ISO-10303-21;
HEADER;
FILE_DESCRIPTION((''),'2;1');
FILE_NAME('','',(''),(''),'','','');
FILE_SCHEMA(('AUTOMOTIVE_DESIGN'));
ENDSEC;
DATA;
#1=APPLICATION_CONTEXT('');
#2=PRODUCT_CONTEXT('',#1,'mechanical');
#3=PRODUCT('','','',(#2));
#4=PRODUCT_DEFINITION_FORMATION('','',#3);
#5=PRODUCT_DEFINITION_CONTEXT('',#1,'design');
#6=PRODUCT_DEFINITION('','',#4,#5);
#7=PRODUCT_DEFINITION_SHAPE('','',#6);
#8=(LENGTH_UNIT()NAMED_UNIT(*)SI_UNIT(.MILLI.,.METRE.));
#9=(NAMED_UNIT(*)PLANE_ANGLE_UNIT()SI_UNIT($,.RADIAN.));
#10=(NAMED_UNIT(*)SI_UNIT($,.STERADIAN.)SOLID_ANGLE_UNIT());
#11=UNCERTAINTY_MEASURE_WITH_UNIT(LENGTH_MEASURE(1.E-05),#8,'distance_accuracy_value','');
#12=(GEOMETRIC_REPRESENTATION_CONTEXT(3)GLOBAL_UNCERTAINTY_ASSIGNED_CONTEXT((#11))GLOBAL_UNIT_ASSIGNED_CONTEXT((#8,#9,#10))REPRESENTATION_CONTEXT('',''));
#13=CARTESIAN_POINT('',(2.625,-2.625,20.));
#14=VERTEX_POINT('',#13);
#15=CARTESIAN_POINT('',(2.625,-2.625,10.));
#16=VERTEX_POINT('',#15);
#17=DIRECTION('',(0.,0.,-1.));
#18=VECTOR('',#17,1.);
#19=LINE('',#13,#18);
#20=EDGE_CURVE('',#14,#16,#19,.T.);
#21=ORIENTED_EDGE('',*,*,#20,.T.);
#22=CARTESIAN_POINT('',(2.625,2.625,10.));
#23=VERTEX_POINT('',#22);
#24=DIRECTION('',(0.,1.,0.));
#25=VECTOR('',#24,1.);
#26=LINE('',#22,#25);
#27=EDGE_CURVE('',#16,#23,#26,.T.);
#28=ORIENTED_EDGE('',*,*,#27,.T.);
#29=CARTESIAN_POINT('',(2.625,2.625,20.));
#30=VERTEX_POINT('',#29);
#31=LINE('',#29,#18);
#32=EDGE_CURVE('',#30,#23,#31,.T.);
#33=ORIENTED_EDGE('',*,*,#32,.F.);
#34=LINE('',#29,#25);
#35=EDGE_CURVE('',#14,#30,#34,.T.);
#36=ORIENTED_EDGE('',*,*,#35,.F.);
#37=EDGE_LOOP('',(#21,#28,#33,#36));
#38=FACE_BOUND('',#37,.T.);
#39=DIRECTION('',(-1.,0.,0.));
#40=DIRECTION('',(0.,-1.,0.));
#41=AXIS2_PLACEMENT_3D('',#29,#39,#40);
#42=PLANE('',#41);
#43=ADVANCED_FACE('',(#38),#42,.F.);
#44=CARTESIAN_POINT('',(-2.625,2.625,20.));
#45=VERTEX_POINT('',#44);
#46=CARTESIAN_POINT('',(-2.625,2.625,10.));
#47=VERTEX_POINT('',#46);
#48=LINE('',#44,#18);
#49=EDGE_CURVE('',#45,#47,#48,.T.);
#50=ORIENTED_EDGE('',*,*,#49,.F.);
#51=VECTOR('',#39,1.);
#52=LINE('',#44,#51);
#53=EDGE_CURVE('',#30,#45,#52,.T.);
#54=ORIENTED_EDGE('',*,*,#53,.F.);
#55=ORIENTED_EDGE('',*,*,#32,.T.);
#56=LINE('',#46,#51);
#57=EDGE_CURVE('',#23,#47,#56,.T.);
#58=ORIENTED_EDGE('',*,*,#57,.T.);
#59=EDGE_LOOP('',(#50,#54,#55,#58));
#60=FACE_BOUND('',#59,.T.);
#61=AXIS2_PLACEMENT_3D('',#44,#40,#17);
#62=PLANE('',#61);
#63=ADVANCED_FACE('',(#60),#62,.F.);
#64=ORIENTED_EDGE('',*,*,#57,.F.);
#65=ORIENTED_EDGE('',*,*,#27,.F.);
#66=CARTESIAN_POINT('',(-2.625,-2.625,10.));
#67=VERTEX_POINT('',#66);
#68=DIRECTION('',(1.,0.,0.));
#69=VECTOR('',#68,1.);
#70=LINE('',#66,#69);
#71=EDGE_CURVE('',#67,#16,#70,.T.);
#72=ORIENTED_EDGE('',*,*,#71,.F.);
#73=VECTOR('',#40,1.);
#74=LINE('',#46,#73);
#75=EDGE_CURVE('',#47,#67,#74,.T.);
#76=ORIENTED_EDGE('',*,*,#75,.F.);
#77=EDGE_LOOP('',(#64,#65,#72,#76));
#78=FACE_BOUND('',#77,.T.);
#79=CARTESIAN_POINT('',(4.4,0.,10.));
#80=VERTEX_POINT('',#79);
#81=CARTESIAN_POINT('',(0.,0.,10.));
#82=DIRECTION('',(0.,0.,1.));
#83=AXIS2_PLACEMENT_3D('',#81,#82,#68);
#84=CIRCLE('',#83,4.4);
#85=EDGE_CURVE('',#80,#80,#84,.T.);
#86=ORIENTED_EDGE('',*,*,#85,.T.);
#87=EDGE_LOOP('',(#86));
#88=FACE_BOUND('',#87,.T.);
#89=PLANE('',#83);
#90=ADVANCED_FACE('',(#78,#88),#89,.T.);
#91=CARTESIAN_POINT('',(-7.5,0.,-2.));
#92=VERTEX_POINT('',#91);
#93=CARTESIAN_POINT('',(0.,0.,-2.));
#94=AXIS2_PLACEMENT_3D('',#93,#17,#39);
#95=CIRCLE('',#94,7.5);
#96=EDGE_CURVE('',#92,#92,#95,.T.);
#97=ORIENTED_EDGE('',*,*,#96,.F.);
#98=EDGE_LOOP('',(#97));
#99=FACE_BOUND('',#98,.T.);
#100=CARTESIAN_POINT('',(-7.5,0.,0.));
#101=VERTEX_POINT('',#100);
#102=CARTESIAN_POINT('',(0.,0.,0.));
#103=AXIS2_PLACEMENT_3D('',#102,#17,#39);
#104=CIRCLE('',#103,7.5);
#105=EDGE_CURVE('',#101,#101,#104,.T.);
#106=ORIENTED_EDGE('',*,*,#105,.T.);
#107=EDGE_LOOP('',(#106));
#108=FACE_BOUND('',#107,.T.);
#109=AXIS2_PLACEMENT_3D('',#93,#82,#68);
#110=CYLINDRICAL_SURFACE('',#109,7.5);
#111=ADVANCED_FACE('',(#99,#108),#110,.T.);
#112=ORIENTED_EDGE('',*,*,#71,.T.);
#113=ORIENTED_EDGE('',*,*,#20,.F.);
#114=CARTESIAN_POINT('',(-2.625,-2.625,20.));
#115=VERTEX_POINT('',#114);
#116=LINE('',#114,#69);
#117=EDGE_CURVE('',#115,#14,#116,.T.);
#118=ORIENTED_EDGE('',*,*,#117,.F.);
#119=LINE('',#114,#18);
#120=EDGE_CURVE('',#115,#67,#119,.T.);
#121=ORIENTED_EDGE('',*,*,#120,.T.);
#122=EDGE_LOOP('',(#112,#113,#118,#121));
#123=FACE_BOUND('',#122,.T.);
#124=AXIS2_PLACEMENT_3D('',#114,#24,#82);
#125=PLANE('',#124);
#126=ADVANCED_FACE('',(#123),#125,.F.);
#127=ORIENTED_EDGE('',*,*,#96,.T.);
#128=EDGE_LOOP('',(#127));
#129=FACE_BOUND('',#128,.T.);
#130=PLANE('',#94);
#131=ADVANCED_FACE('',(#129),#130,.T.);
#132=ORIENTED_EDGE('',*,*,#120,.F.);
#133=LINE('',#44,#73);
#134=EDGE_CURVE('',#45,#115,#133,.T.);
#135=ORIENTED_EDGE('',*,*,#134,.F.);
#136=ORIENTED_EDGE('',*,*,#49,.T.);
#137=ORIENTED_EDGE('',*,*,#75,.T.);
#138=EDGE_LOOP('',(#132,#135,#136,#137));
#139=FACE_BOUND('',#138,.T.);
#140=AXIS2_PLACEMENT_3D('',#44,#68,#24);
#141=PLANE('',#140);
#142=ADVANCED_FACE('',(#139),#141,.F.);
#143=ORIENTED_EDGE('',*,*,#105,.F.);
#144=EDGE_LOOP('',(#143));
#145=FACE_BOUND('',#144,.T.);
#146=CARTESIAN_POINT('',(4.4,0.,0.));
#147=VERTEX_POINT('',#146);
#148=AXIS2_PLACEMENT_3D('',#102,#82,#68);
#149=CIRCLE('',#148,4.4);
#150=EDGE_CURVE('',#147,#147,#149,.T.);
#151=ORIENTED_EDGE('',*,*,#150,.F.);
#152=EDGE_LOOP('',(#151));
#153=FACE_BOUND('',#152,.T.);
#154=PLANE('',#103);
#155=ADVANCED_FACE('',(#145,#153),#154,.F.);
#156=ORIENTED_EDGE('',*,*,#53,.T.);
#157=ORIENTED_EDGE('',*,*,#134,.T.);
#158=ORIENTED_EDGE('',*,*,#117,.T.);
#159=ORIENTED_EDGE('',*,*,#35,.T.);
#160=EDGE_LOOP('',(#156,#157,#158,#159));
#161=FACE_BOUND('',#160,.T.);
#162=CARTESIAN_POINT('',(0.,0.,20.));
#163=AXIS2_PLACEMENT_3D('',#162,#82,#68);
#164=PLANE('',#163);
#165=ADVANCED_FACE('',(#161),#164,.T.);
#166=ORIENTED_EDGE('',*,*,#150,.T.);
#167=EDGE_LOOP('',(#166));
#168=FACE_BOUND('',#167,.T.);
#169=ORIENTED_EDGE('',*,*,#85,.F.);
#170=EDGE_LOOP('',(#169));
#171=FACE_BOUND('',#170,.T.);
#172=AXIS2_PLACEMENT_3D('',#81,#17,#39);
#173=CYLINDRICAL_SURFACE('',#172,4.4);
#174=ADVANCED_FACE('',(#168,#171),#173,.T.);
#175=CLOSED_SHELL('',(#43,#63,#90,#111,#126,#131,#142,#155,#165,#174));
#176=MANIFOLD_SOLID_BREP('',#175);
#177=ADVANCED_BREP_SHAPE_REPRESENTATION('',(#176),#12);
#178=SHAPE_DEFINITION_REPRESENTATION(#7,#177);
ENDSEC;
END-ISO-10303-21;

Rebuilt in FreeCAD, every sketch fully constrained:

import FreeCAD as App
import Part
import Sketcher

V = App.Vector
Q = App.Units.Quantity

doc = App.newDocument("Part")
params = doc.addObject("Spreadsheet::Sheet", "Params")
for row, (alias, value) in enumerate([
    ("sketch1_diameter", "8.8 mm"),
    ("pad1_length", "10 mm"),
    ("sketch2_width", "5.25 mm"),
    ("pad2_length", "10 mm"),
    ("sketch3_diameter", "15 mm"),
    ("pad3_length", "2 mm"),
], start=1):
    params.set(f"A{row}", alias)
    params.set(f"B{row}", "=" + value)
    params.setAlias(f"B{row}", alias)

body = doc.addObject("PartDesign::Body", "Body")

# Sketch on XY plane
sketch1 = body.newObject("Sketcher::SketchObject", "Sketch")
sketch1.AttachmentSupport = (doc.getObject("XY_Plane"), [""])
sketch1.MapMode = "FlatFace"
sketch1.addGeometry(Part.Circle(V(0, 0, 0), V(0, 0, 1), 4.4), False)
sketch1.addConstraint([
    Sketcher.Constraint("Coincident", 0, 3, -1, 1),
    Sketcher.Constraint("Diameter", 0, Q("8.8 mm")),
])
sketch1.setExpression("Constraints[1]", "Params.sketch1_diameter")
pad1 = body.newObject("PartDesign::Pad", "Pad")
pad1.Profile = sketch1
pad1.setExpression("Length", "Params.pad1_length")

# Sketch on XY plane
sketch2 = body.newObject("Sketcher::SketchObject", "Sketch001")
sketch2.AttachmentSupport = (doc.getObject("XY_Plane"), [""])
sketch2.MapMode = "FlatFace"
sketch2.AttachmentOffset = App.Placement(V(0, 0, 10), App.Rotation())
sketch2.addGeometry([
    Part.LineSegment(V(-3, 3, 0), V(-3, -3, 0)),
    Part.LineSegment(V(-3, -3, 0), V(3, -3, 0)),
    Part.LineSegment(V(3, -3, 0), V(3, 3, 0)),
    Part.LineSegment(V(3, 3, 0), V(-3, 3, 0)),
], False)
sketch2.addConstraint([
    Sketcher.Constraint("Coincident", 0, 2, 1, 1),
    Sketcher.Constraint("Coincident", 1, 2, 2, 1),
    Sketcher.Constraint("Coincident", 2, 2, 3, 1),
    Sketcher.Constraint("Coincident", 3, 2, 0, 1),
    Sketcher.Constraint("Vertical", 0),
    Sketcher.Constraint("Horizontal", 1),
    Sketcher.Constraint("Vertical", 2),
    Sketcher.Constraint("Horizontal", 3),
    Sketcher.Constraint("Symmetric", 0, 2, 2, 2, -1, 1),
    Sketcher.Constraint("Equal", 3, 0),
    Sketcher.Constraint("DistanceX", 1, 1, 1, 2, Q("5.25 mm")),
])
sketch2.setExpression("Constraints[10]", "Params.sketch2_width")
pad2 = body.newObject("PartDesign::Pad", "Pad001")
pad2.Profile = sketch2
pad2.setExpression("Length", "Params.pad2_length")

# Sketch on XY plane
sketch3 = body.newObject("Sketcher::SketchObject", "Sketch002")
sketch3.AttachmentSupport = (doc.getObject("XY_Plane"), [""])
sketch3.MapMode = "FlatFace"
sketch3.addGeometry(Part.Circle(V(0, 0, 0), V(0, 0, 1), 8), False)
sketch3.addConstraint([
    Sketcher.Constraint("Coincident", 0, 3, -1, 1),
    Sketcher.Constraint("Diameter", 0, Q("15 mm")),
])
sketch3.setExpression("Constraints[1]", "Params.sketch3_diameter")
pad3 = body.newObject("PartDesign::Pad", "Pad002")
pad3.Profile = sketch3
pad3.setExpression("Length", "Params.pad3_length")
pad3.Reversed = True

doc.recompute()
